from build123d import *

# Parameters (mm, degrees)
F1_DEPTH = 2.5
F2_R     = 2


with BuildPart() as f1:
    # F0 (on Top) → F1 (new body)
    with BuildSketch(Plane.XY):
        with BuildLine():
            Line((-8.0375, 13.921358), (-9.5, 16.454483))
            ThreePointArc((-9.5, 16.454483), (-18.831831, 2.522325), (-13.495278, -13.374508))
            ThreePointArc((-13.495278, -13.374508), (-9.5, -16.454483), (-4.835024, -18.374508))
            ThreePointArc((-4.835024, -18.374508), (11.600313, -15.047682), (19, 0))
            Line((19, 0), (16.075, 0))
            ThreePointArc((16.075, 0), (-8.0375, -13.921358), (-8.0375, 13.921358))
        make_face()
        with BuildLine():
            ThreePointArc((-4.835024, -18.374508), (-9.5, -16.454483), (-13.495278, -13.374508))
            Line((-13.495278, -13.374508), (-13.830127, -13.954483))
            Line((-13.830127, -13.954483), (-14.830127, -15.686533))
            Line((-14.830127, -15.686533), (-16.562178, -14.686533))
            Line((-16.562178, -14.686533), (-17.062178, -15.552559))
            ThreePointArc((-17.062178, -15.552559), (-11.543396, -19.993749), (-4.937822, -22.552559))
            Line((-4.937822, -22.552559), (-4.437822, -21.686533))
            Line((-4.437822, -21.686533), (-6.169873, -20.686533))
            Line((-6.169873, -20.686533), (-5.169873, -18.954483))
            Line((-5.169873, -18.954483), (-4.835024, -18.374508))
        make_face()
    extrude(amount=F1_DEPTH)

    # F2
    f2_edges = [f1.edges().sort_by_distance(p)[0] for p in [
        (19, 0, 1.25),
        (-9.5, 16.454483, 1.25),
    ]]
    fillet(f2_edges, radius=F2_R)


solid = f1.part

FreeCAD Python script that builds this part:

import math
import FreeCAD as App
import Part
import Sketcher
Q = App.Units.Quantity


def edges_at(feature, points):
    """Names of the edges that pass closest to the given points."""
    edges = feature.Shape.Edges
    near = lambda p: min(range(len(edges)), key=lambda i: edges[i].distToShape(Part.Vertex(*p))[0])
    return sorted({f"Edge{near(p) + 1}" for p in points})

doc = App.newDocument("Part")
body = doc.addObject("PartDesign::Body", "Body")

sketch1 = body.newObject("Sketcher::SketchObject", "Sketch")
sketch1.AttachmentSupport = (doc.getObject("XY_Plane"), [""])
sketch1.MapMode = "FlatFace"
sketch1.addGeometry([
    Part.LineSegment(App.Vector(-8, 13.9, 0), App.Vector(-9.5, 16.5, 0)),
    Part.ArcOfCircle(Part.Circle(App.Vector(0, 0, 0), App.Vector(0, 0, 1), 19), math.radians(120), math.radians(225)),
    Part.LineSegment(App.Vector(-13.5, -13.4, 0), App.Vector(-13.8, -14, 0)),
    Part.LineSegment(App.Vector(-13.8, -14, 0), App.Vector(-14.8, -15.7, 0)),
    Part.LineSegment(App.Vector(-14.8, -15.7, 0), App.Vector(-16.6, -14.7, 0)),
    Part.LineSegment(App.Vector(-16.6, -14.7, 0), App.Vector(-17.1, -15.6, 0)),
    Part.ArcOfCircle(Part.Circle(App.Vector(0, 0, 0), App.Vector(0, 0, 1), 23.1), math.radians(-138), math.radians(-102)),
    Part.LineSegment(App.Vector(-4.9, -22.6, 0), App.Vector(-4.4, -21.7, 0)),
    Part.LineSegment(App.Vector(-4.4, -21.7, 0), App.Vector(-6.2, -20.7, 0)),
    Part.LineSegment(App.Vector(-6.2, -20.7, 0), App.Vector(-5.2, -19, 0)),
    Part.LineSegment(App.Vector(-5.2, -19, 0), App.Vector(-4.8, -18.4, 0)),
    Part.ArcOfCircle(Part.Circle(App.Vector(0, 0, 0), App.Vector(0, 0, 1), 19), math.radians(-105), math.radians(0)),
    Part.LineSegment(App.Vector(19, 0, 0), App.Vector(16.1, 0, 0)),
    Part.ArcOfCircle(Part.Circle(App.Vector(0, 0, 0), App.Vector(0, 0, 1), 16.1), math.radians(120), math.radians(360)),
], False)
sketch1.addConstraint([
    Sketcher.Constraint("Coincident", 0, 2, 1, 1),
    Sketcher.Constraint("Coincident", 1, 2, 2, 1),
    Sketcher.Constraint("Coincident", 2, 2, 3, 1),
    Sketcher.Constraint("Coincident", 3, 2, 4, 1),
    Sketcher.Constraint("Coincident", 4, 2, 5, 1),
    Sketcher.Constraint("Coincident", 5, 2, 6, 1),
    Sketcher.Constraint("Coincident", 6, 2, 7, 1),
    Sketcher.Constraint("Coincident", 7, 2, 8, 1),
    Sketcher.Constraint("Coincident", 8, 2, 9, 1),
    Sketcher.Constraint("Coincident", 9, 2, 10, 1),
    Sketcher.Constraint("Coincident", 10, 2, 11, 1),
    Sketcher.Constraint("Coincident", 11, 2, 12, 1),
    Sketcher.Constraint("Coincident", 12, 2, 13, 2),
    Sketcher.Constraint("Coincident", 13, 1, 0, 1),
    Sketcher.Constraint("Horizontal", 12),
    Sketcher.Constraint("Coincident", 1, 3, -1, 1),
    Sketcher.Constraint("Coincident", 6, 3, -1, 1),
    Sketcher.Constraint("Coincident", 11, 3, -1, 1),
    Sketcher.Constraint("Coincident", 13, 3, -1, 1),
    Sketcher.Constraint("Equal", 1, 11),
    Sketcher.Constraint("PointOnObject", 11, 2, -1),
    Sketcher.Constraint("Parallel", 2, 3),
    Sketcher.Constraint("Perpendicular", 3, 4),
    Sketcher.Constraint("Perpendicular", 4, 5),
    Sketcher.Constraint("Parallel", 5, 7),
    Sketcher.Constraint("Perpendicular", 7, 8),
    Sketcher.Constraint("Perpendicular", 8, 9),
    Sketcher.Constraint("Parallel", 9, 10),
    Sketcher.Constraint("Equal", 3, 4),
    Sketcher.Constraint("Equal", 5, 7),
    Sketcher.Constraint("Equal", 4, 8),
    Sketcher.Constraint("Equal", 8, 9),
    Sketcher.Constraint("Equal", 2, 10),
    Sketcher.Constraint("Radius", 1, 19.000001),
    Sketcher.Constraint("Angle", 0, Q("119.999993 deg")),
    Sketcher.Constraint("Angle", 3, Q("-120.000012 deg")),
    Sketcher.Constraint("Distance", 3, 1.999999),
    Sketcher.Constraint("Distance", 5, 1.000001),
    Sketcher.Constraint("Radius", 13, 16.075),
    Sketcher.Constraint("DistanceY", 6, 2, 5, 2, 7.0),
    Sketcher.Constraint("DistanceX", 0, 2, -1, 1, 9.5),
    Sketcher.Constraint("Radius", 6, 23.0868),
])
pad1 = body.newObject("PartDesign::Pad", "Pad")
pad1.Profile = sketch1
pad1.Length = 2.5
doc.recompute()

fillet = body.newObject("PartDesign::Fillet", "Fillet")
fillet.Base = (pad1, edges_at(pad1, [(19, 0, 1.25), (-9.5, 16.454, 1.25)]))
fillet.Radius = 2

doc.recompute()
